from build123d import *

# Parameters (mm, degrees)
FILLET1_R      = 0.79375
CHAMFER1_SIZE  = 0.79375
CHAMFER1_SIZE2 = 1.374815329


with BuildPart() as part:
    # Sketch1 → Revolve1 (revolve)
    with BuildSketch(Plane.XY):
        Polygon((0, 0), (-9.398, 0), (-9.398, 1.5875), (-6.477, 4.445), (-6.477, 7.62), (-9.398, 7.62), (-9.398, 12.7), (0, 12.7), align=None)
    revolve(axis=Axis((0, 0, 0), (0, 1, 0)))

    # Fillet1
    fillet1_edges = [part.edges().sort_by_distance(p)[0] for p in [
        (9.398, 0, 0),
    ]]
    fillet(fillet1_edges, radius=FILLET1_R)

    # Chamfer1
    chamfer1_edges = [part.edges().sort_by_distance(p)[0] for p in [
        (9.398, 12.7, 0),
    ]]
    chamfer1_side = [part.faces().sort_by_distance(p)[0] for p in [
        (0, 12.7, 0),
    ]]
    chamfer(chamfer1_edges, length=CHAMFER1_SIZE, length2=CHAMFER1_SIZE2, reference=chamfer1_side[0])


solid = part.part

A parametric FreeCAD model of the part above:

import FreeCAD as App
import Part
import Sketcher
Q = App.Units.Quantity


def edges_at(feature, points):
    """Names of the edges that pass closest to the given points."""
    edges = feature.Shape.Edges
    near = lambda p: min(range(len(edges)), key=lambda i: edges[i].distToShape(Part.Vertex(*p))[0])
    return sorted({f"Edge{near(p) + 1}" for p in points})


def add_polygon(sketch, points):
    """Adds a closed chain of lines whose ends are joined by coincident constraints."""
    first, n = sketch.GeometryCount, len(points)
    for a, b in zip(points, points[1:] + points[:1]):
        sketch.addGeometry(Part.LineSegment(App.Vector(*a, 0), App.Vector(*b, 0)), False)
    for i in range(n):
        sketch.addConstraint(Sketcher.Constraint("Coincident", first + i, 2, first + (i + 1) % n, 1))

doc = App.newDocument("Part")
params = doc.addObject("Spreadsheet::Sheet", "Params")
for row, (alias, value) in enumerate([
    ("sketch1_height", "0.5 in"),
    ("sketch1_height2", "0.2 in"),
    ("sketch1_width", "0.37 in"),
    ("sketch1_width2", "0.115 in"),
    ("sketch1_height3", "0.125 in"),
    ("revolution_angle", "360 deg"),
    ("fillet_radius", "0.03125 in"),
    ("chamfer_size", "0.03125 in"),
    ("chamfer_size2", "1.374815 mm"),
], start=1):
    params.set(f"A{row}", alias)
    params.set(f"B{row}", "=" + value)
    params.setAlias(f"B{row}", alias)

body = doc.addObject("PartDesign::Body", "Body")

# Sketch on XY plane
sketch1 = doc.addObject("Sketcher::SketchObject", "Sketch")
body.addObject(sketch1)
sketch1.AttachmentSupport = (doc.XY_Plane, [""])
sketch1.MapMode = "FlatFace"
add_polygon(sketch1, [(-9.398, 0), (0, 0), (0, 12.7), (-9.398, 12.7), (-9.398, 7.62), (-6.477, 7.62), (-6.477, 4.445), (-9.398, 1.5875)])  # lines 0-7
sketch1.addConstraint(Sketcher.Constraint("Horizontal", 0))
sketch1.addConstraint(Sketcher.Constraint("Vertical", 1))
sketch1.addConstraint(Sketcher.Constraint("Horizontal", 2))
sketch1.addConstraint(Sketcher.Constraint("Vertical", 3))
sketch1.addConstraint(Sketcher.Constraint("Horizontal", 4))
sketch1.addConstraint(Sketcher.Constraint("Vertical", 5))
sketch1.addConstraint(Sketcher.Constraint("Vertical", 7))
sketch1.addConstraint(Sketcher.Constraint("Coincident", 0, 2, -1, 1))
sketch1.addConstraint(Sketcher.Constraint("Vertical", 3, 2, 6, 2))
sketch1.addConstraint(Sketcher.Constraint("DistanceY", 1, 1, 1, 2, Q("0.5 in")))
sketch1.addConstraint(Sketcher.Constraint("DistanceY", 3, 2, 3, 1, Q("0.2 in")))
sketch1.addConstraint(Sketcher.Constraint("DistanceX", 0, 1, 0, 2, Q("0.37 in")))
sketch1.addConstraint(Sketcher.Constraint("DistanceX", 4, 1, 4, 2, Q("0.115 in")))
sketch1.addConstraint(Sketcher.Constraint("DistanceY", 5, 2, 5, 1, Q("0.125 in")))
sketch1.addConstraint(Sketcher.Constraint("DistanceY", 7, 2, 7, 1, Q("0.0625 in")))
sketch1.setExpression("Constraints[17]", "Params.sketch1_height")
sketch1.setExpression("Constraints[18]", "Params.sketch1_height2")
sketch1.setExpression("Constraints[19]", "Params.sketch1_width")
sketch1.setExpression("Constraints[20]", "Params.sketch1_width2")
sketch1.setExpression("Constraints[21]", "Params.sketch1_height3")
revolution = doc.addObject("PartDesign::Revolution", "Revolution")
body.addObject(revolution)
revolution.Profile = sketch1
revolution.ReferenceAxis = (sketch1, ["V_Axis"])
revolution.setExpression("Angle", "Params.revolution_angle")
doc.recompute()

fillet = doc.addObject("PartDesign::Fillet", "Fillet")
body.addObject(fillet)
fillet.Base = (revolution, edges_at(revolution, [(9.398, 0, 0)]))
fillet.setExpression("Radius", "Params.fillet_radius")
doc.recompute()

chamfer = doc.addObject("PartDesign::Chamfer", "Chamfer")
body.addObject(chamfer)
chamfer.Base = (fillet, edges_at(fillet, [(9.398, 12.7, 0)]))
chamfer.ChamferType = "Two distances"
chamfer.setExpression("Size", "Params.chamfer_size")
chamfer.setExpression("Size2", "Params.chamfer_size2")
chamfer.FlipDirection = True

doc.recompute()
